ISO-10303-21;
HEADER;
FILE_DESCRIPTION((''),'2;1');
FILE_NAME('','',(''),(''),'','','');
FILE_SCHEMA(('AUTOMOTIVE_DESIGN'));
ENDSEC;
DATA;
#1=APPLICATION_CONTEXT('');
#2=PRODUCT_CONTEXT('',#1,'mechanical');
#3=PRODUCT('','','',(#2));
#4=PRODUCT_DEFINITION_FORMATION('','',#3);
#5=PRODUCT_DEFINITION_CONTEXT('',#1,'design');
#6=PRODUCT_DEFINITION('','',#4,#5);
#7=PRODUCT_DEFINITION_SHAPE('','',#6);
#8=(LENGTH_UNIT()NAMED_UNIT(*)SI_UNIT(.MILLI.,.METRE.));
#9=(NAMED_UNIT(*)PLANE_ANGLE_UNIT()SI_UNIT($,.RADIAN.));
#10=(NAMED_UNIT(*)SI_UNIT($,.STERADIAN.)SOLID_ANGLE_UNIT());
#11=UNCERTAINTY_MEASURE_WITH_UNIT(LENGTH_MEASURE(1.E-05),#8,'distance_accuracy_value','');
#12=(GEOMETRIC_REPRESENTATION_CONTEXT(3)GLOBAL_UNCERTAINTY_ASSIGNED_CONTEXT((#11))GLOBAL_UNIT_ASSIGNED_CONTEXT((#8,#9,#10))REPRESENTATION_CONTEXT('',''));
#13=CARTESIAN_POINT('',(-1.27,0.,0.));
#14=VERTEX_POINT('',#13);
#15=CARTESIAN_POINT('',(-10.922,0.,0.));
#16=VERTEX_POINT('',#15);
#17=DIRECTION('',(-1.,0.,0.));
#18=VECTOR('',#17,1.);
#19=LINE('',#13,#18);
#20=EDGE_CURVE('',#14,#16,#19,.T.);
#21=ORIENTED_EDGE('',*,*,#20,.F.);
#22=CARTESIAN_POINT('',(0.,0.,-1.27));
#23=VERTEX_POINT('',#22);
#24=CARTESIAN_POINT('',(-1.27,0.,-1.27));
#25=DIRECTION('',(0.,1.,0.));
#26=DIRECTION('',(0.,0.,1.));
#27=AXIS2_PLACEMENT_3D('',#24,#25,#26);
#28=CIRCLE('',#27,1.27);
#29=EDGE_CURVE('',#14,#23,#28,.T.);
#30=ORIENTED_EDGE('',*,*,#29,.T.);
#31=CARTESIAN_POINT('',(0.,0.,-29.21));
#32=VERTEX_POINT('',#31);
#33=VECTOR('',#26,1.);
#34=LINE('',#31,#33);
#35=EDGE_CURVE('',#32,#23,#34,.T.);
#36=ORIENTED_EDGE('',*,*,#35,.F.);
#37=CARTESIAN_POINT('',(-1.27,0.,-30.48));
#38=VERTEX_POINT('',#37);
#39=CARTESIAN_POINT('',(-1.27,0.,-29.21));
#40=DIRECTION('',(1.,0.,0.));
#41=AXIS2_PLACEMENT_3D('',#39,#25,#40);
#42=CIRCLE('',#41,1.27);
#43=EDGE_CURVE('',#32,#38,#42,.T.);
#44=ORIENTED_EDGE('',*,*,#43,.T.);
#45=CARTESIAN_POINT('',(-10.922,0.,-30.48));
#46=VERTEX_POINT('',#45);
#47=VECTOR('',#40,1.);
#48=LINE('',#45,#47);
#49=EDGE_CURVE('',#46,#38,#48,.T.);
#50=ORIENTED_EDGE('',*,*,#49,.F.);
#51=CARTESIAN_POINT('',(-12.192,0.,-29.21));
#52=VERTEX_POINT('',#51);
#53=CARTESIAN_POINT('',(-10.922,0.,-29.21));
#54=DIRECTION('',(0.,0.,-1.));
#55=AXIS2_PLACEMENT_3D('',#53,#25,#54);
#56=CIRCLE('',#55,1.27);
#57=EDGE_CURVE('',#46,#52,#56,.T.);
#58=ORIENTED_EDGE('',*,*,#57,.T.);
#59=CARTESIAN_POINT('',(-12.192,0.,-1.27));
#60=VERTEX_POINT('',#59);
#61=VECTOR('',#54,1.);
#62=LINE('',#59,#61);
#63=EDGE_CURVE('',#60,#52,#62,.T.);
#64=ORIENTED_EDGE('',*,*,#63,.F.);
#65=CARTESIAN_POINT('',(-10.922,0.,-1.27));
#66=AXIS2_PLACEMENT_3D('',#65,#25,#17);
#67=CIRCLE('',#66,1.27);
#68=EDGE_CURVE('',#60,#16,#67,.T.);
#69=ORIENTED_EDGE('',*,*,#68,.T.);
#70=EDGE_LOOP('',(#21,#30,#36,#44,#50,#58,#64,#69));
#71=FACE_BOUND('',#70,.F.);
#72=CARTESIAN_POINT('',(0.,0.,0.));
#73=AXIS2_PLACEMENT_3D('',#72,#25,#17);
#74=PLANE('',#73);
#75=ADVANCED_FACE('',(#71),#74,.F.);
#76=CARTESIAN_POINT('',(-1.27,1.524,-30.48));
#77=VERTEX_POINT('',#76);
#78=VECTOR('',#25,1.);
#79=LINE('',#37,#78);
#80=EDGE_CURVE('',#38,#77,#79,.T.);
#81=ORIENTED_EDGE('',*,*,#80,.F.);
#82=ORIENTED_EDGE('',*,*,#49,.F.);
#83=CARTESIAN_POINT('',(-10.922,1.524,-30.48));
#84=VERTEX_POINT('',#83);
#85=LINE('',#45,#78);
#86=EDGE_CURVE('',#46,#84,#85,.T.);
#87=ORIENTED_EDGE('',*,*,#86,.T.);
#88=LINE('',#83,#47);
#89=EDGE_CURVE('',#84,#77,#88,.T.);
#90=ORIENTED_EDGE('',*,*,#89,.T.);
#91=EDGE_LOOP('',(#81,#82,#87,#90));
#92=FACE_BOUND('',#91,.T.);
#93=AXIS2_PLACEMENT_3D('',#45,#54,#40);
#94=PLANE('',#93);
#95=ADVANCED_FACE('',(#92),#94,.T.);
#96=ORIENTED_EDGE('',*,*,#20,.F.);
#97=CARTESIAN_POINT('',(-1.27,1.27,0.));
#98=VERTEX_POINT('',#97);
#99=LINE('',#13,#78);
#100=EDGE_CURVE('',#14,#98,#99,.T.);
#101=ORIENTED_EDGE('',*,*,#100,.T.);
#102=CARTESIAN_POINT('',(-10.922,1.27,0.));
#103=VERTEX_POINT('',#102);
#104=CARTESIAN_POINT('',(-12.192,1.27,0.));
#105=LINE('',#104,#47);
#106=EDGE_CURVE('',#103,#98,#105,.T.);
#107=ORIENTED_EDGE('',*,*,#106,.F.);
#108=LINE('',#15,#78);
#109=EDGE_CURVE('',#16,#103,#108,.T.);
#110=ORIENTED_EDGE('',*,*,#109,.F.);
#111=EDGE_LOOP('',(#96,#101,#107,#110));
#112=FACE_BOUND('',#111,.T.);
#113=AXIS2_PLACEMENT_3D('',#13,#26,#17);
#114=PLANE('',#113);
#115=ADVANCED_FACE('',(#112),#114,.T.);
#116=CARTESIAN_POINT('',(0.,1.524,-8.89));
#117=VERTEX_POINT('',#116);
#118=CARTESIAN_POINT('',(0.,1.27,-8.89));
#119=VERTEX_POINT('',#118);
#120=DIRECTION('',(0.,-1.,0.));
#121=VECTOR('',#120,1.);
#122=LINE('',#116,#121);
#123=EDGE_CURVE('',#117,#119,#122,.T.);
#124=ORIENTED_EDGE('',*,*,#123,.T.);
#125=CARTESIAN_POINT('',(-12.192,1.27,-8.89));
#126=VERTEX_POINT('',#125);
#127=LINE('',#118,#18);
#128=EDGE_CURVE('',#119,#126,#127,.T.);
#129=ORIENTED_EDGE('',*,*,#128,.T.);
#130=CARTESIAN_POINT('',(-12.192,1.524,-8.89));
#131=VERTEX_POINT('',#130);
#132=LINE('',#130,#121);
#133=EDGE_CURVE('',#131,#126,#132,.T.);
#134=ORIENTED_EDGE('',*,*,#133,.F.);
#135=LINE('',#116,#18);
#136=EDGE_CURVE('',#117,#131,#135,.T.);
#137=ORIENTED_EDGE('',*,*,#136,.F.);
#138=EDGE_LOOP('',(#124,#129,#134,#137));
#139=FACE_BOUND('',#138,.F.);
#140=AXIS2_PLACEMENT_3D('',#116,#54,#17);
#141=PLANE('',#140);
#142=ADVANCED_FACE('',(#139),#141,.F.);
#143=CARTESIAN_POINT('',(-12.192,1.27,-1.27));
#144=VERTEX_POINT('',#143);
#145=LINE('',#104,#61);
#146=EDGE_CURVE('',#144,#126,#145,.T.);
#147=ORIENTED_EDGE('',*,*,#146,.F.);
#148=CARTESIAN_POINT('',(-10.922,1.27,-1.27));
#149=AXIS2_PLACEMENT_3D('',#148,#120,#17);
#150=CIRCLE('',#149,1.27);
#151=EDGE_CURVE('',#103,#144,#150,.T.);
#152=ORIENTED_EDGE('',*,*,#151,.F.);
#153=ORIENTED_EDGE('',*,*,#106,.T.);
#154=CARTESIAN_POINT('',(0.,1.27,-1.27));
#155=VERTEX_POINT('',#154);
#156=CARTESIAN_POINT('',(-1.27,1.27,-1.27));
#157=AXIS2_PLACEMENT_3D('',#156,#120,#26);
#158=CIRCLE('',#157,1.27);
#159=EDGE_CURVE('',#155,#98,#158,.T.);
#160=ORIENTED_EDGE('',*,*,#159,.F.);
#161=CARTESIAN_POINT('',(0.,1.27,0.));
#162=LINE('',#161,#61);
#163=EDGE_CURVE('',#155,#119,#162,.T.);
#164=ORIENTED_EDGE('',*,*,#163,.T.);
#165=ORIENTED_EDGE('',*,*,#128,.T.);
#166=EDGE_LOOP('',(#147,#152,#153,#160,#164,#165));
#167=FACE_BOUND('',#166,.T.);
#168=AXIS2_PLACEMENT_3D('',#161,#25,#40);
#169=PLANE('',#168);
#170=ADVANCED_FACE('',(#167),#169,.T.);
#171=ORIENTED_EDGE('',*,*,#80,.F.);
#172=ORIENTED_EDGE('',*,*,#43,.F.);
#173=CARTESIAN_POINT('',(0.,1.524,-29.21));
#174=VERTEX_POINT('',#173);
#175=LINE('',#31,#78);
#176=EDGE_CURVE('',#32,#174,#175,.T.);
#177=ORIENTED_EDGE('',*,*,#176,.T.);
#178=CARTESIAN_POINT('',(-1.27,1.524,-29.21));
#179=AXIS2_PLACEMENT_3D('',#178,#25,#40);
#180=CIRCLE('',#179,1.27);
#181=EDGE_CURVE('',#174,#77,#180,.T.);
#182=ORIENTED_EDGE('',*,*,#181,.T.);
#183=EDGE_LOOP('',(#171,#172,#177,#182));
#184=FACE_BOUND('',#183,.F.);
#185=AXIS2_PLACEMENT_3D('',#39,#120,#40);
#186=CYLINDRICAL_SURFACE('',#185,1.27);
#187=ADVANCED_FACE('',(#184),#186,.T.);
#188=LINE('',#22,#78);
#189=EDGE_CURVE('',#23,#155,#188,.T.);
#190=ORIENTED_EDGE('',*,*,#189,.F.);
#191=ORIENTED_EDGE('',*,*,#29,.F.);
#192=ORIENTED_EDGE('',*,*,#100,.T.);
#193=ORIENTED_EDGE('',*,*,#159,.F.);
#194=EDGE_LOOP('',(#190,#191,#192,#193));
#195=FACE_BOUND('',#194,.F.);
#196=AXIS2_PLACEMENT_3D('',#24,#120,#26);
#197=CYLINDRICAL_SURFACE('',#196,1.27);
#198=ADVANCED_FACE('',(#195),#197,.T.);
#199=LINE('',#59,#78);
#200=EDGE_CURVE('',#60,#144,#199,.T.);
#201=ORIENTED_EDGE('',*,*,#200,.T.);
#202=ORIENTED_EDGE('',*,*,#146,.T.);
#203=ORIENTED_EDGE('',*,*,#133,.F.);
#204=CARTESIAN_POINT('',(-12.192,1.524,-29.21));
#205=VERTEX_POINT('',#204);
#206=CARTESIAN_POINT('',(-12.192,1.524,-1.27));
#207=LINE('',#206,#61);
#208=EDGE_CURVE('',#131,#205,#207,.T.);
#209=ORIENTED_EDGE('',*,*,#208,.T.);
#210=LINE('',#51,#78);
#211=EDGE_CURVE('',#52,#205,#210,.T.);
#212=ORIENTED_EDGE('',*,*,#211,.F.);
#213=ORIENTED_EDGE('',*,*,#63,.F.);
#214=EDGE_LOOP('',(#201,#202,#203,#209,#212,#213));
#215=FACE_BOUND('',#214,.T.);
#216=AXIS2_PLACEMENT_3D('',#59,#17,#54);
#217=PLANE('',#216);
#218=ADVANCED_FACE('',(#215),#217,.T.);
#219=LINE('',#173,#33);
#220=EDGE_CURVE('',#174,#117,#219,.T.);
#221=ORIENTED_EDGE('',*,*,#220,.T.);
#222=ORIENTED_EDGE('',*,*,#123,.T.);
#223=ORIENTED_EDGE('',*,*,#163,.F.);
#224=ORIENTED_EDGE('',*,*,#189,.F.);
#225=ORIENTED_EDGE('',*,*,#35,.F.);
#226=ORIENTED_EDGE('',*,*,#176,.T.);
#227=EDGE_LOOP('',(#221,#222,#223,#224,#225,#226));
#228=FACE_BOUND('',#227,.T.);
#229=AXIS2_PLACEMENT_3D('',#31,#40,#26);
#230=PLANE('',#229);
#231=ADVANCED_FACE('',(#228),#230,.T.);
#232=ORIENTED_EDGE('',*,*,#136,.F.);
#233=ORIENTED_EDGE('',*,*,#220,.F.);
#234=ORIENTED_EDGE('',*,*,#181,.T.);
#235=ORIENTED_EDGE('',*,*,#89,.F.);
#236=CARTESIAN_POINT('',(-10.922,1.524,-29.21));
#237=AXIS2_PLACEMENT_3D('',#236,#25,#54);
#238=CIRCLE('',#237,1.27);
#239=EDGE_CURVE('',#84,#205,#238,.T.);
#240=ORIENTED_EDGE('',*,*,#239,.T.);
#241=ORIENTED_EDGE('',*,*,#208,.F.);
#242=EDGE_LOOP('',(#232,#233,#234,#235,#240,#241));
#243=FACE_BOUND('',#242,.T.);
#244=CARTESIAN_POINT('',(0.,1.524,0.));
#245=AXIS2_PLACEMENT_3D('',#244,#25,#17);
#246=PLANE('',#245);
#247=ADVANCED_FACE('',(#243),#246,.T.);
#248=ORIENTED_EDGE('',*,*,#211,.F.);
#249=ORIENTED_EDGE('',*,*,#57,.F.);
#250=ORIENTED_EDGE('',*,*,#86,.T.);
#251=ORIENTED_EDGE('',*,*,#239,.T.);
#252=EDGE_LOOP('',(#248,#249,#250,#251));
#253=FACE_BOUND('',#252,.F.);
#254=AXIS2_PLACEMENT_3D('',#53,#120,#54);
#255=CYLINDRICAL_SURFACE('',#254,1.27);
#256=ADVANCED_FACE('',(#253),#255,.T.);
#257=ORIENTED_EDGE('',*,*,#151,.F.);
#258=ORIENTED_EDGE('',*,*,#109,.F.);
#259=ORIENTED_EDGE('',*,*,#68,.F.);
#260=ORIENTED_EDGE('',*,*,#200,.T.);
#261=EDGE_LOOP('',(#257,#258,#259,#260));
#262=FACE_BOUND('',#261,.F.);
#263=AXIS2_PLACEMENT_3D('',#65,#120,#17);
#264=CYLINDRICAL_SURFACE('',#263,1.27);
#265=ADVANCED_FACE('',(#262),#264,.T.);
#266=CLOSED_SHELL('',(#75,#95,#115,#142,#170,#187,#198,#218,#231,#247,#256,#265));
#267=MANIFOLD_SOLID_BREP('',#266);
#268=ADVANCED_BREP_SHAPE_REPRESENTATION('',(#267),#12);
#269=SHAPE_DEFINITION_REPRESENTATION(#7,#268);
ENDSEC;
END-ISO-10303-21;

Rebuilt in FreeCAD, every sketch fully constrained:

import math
import FreeCAD as App
import Part
import Sketcher
Q = App.Units.Quantity

doc = App.newDocument("Part")
params = doc.addObject("Spreadsheet::Sheet", "Params")
for row, (alias, value) in enumerate([
    ("sketch1_radius", "0.05 in"),
    ("pad1_length", "0.06 in"),
    ("sketch2_width", "0.48 in"),
    ("sketch2_height", "0.35 in"),
    ("pocket1_length", "0.01 in"),
], start=1):
    params.set(f"A{row}", alias)
    params.set(f"B{row}", "=" + value)
    params.setAlias(f"B{row}", alias)

body = doc.addObject("PartDesign::Body", "Body")

sketch1 = body.newObject("Sketcher::SketchObject", "Sketch")
sketch1.AttachmentSupport = (doc.getObject("XZ_Plane"), [""])
sketch1.MapMode = "FlatFace"
sketch1.addGeometry(Part.LineSegment(App.Vector(-10.9, 0, 0), App.Vector(-1.3, 0, 0)), False)
sketch1.addGeometry(Part.ArcOfCircle(Part.Circle(App.Vector(-1.3, -1.3, 0), App.Vector(0, 0, 1), 1.3), math.radians(0), math.radians(90)), False)
sketch1.addGeometry(Part.LineSegment(App.Vector(0, -1.3, 0), App.Vector(0, -29.2, 0)), False)
sketch1.addGeometry(Part.ArcOfCircle(Part.Circle(App.Vector(-1.3, -29.2, 0), App.Vector(0, 0, 1), 1.3), math.radians(-90), math.radians(0)), False)
sketch1.addGeometry(Part.LineSegment(App.Vector(-1.3, -30.5, 0), App.Vector(-10.9, -30.5, 0)), False)
sketch1.addGeometry(Part.ArcOfCircle(Part.Circle(App.Vector(-10.9, -29.2, 0), App.Vector(0, 0, 1), 1.3), math.radians(180), math.radians(270)), False)
sketch1.addGeometry(Part.LineSegment(App.Vector(-12.2, -29.2, 0), App.Vector(-12.2, -1.3, 0)), False)
sketch1.addGeometry(Part.ArcOfCircle(Part.Circle(App.Vector(-10.9, -1.3, 0), App.Vector(0, 0, 1), 1.3), math.radians(90), math.radians(180)), False)
sketch1.addConstraint(Sketcher.Constraint("Tangent", 0, 2, 1, 2))
sketch1.addConstraint(Sketcher.Constraint("Tangent", 1, 1, 2, 1))
sketch1.addConstraint(Sketcher.Constraint("Tangent", 2, 2, 3, 2))
sketch1.addConstraint(Sketcher.Constraint("Tangent", 3, 1, 4, 1))
sketch1.addConstraint(Sketcher.Constraint("Tangent", 4, 2, 5, 2))
sketch1.addConstraint(Sketcher.Constraint("Tangent", 5, 1, 6, 1))
sketch1.addConstraint(Sketcher.Constraint("Tangent", 6, 2, 7, 2))
sketch1.addConstraint(Sketcher.Constraint("Tangent", 7, 1, 0, 1))
sketch1.addConstraint(Sketcher.Constraint("Horizontal", 0))
sketch1.addConstraint(Sketcher.Constraint("Vertical", 2))
sketch1.addConstraint(Sketcher.Constraint("Horizontal", 4))
sketch1.addConstraint(Sketcher.Constraint("Vertical", 6))
sketch1.addConstraint(Sketcher.Constraint("Equal", 1, 3))
sketch1.addConstraint(Sketcher.Constraint("Equal", 3, 5))
sketch1.addConstraint(Sketcher.Constraint("Equal", 5, 7))
sketch1.addConstraint(Sketcher.Constraint("PointOnObject", 0, 2, -1))
sketch1.addConstraint(Sketcher.Constraint("PointOnObject", 1, 1, -2))
sketch1.addConstraint(Sketcher.Constraint("Radius", 1, Q("0.05 in")))
sketch1.addConstraint(Sketcher.Constraint("DistanceY", 3, 1, -1, 1, Q("1.2 in")))
sketch1.addConstraint(Sketcher.Constraint("DistanceX", 5, 1, -1, 1, Q("0.48 in")))
sketch1.setExpression("Constraints[17]", "Params.sketch1_radius")
pad1 = body.newObject("PartDesign::Pad", "Pad")
pad1.Profile = sketch1
pad1.setExpression("Length", "Params.pad1_length")
pad1.Reversed = True

sketch2 = body.newObject("Sketcher::SketchObject", "Sketch001")
sketch2.AttachmentSupport = (doc.getObject("XZ_Plane"), [""])
sketch2.MapMode = "FlatFace"
sketch2.AttachmentOffset = App.Placement(App.Vector(0, 0, -0.06 * 25.4), App.Rotation())
sketch2.addGeometry(Part.LineSegment(App.Vector(0, 0, 0), App.Vector(0, -9, 0)), False)
sketch2.addGeometry(Part.LineSegment(App.Vector(0, -9, 0), App.Vector(-12, -9, 0)), False)
sketch2.addGeometry(Part.LineSegment(App.Vector(-12, -9, 0), App.Vector(-12, 0, 0)), False)
sketch2.addGeometry(Part.LineSegment(App.Vector(-12, 0, 0), App.Vector(0, 0, 0)), False)
sketch2.addConstraint(Sketcher.Constraint("Coincident", 0, 2, 1, 1))
sketch2.addConstraint(Sketcher.Constraint("Coincident", 1, 2, 2, 1))
sketch2.addConstraint(Sketcher.Constraint("Coincident", 2, 2, 3, 1))
sketch2.addConstraint(Sketcher.Constraint("Coincident", 3, 2, 0, 1))
sketch2.addConstraint(Sketcher.Constraint("Vertical", 0))
sketch2.addConstraint(Sketcher.Constraint("Horizontal", 1))
sketch2.addConstraint(Sketcher.Constraint("Vertical", 2))
sketch2.addConstraint(Sketcher.Constraint("Horizontal", 3))
sketch2.addConstraint(Sketcher.Constraint("Coincident", 3, 2, -1, 1))
sketch2.addConstraint(Sketcher.Constraint("DistanceX", 1, 2, 1, 1, Q("0.48 in")))
sketch2.addConstraint(Sketcher.Constraint("DistanceY", 0, 2, 0, 1, Q("0.35 in")))
sketch2.setExpression("Constraints[9]", "Params.sketch2_width")
sketch2.setExpression("Constraints[10]", "Params.sketch2_height")
pocket1 = body.newObject("PartDesign::Pocket", "Pocket")
pocket1.Profile = sketch2
pocket1.setExpression("Length", "Params.pocket1_length")
pocket1.Reversed = True

doc.recompute()
